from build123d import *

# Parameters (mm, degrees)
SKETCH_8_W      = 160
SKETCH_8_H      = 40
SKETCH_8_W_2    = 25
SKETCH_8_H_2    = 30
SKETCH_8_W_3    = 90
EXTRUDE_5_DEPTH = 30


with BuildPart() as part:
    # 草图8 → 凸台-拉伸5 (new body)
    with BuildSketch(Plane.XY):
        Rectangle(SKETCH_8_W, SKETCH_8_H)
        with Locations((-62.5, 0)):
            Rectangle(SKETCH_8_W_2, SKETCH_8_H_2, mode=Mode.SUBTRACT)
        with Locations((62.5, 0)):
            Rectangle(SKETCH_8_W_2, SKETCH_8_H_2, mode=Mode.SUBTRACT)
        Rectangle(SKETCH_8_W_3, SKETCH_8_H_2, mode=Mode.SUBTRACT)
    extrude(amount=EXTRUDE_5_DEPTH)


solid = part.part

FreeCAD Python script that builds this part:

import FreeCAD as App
import Part
import Sketcher


def add_polygon(sketch, points):
    """Adds a closed chain of lines whose ends are joined by coincident constraints."""
    first, n = sketch.GeometryCount, len(points)
    for a, b in zip(points, points[1:] + points[:1]):
        sketch.addGeometry(Part.LineSegment(App.Vector(*a, 0), App.Vector(*b, 0)), False)
    for i in range(n):
        sketch.addConstraint(Sketcher.Constraint("Coincident", first + i, 2, first + (i + 1) % n, 1))

doc = App.newDocument("Part")
params = doc.addObject("Spreadsheet::Sheet", "Params")
for row, (alias, value) in enumerate([
    ("sketch1_width", "160 mm"),
    ("sketch1_width2", "25 mm"),
    ("sketch1_width3", "90 mm"),
    ("sketch1_height", "40 mm"),
    ("sketch1_height2", "30 mm"),
    ("pad1_length", "30 mm"),
], start=1):
    params.set(f"A{row}", alias)
    params.set(f"B{row}", "=" + value)
    params.setAlias(f"B{row}", alias)

body = doc.addObject("PartDesign::Body", "Body")

sketch1 = body.newObject("Sketcher::SketchObject", "Sketch")
sketch1.AttachmentSupport = (doc.getObject("XY_Plane"), [""])
sketch1.MapMode = "FlatFace"
add_polygon(sketch1, [(-80, 20), (-80, -20), (80, -20), (80, 20)])
add_polygon(sketch1, [(-50, -15), (-75, -15), (-75, 15), (-50, 15)])
add_polygon(sketch1, [(45, -15), (-45, -15), (-45, 15), (45, 15)])
add_polygon(sketch1, [(75, -15), (50, -15), (50, 15), (75, 15)])
sketch1.addConstraint([
    Sketcher.Constraint("Vertical", 0),
    Sketcher.Constraint("Horizontal", 1),
    Sketcher.Constraint("Vertical", 2),
    Sketcher.Constraint("Horizontal", 3),
    Sketcher.Constraint("Horizontal", 4),
    Sketcher.Constraint("Vertical", 5),
    Sketcher.Constraint("Horizontal", 6),
    Sketcher.Constraint("Vertical", 7),
    Sketcher.Constraint("Horizontal", 8),
    Sketcher.Constraint("Vertical", 9),
    Sketcher.Constraint("Horizontal", 10),
    Sketcher.Constraint("Vertical", 11),
    Sketcher.Constraint("Horizontal", 12),
    Sketcher.Constraint("Vertical", 13),
    Sketcher.Constraint("Horizontal", 14),
    Sketcher.Constraint("Vertical", 15),
    Sketcher.Constraint("Symmetric", 0, 2, 2, 2, -1, 1),
    Sketcher.Constraint("Symmetric", 8, 2, 10, 2, -1, 1),
    Sketcher.Constraint("Symmetric", 6, 2, 12, 2, -1, 1),
    Sketcher.Constraint("Symmetric", 4, 2, 14, 2, -1, 1),
    Sketcher.Constraint("Horizontal", 7, 2, 8, 2),
    Sketcher.Constraint("Horizontal", 6, 2, 9, 2),
    Sketcher.Constraint("DistanceX", 1, 1, 1, 2, 160.0),
    Sketcher.Constraint("DistanceX", 4, 2, 4, 1, 25.0),
    Sketcher.Constraint("DistanceX", 8, 2, 8, 1, 90.0),
    Sketcher.Constraint("DistanceY", 0, 2, 0, 1, 40.0),
    Sketcher.Constraint("DistanceY", 5, 1, 5, 2, 30.0),
    Sketcher.Constraint("DistanceX", 4, 2, -1, 1, 75.0),
])
sketch1.setExpression("Constraints[38]", "Params.sketch1_width")
sketch1.setExpression("Constraints[39]", "Params.sketch1_width2")
sketch1.setExpression("Constraints[40]", "Params.sketch1_width3")
sketch1.setExpression("Constraints[41]", "Params.sketch1_height")
sketch1.setExpression("Constraints[42]", "Params.sketch1_height2")
pad1 = body.newObject("PartDesign::Pad", "Pad")
pad1.Profile = sketch1
pad1.setExpression("Length", "Params.pad1_length")

doc.recompute()
